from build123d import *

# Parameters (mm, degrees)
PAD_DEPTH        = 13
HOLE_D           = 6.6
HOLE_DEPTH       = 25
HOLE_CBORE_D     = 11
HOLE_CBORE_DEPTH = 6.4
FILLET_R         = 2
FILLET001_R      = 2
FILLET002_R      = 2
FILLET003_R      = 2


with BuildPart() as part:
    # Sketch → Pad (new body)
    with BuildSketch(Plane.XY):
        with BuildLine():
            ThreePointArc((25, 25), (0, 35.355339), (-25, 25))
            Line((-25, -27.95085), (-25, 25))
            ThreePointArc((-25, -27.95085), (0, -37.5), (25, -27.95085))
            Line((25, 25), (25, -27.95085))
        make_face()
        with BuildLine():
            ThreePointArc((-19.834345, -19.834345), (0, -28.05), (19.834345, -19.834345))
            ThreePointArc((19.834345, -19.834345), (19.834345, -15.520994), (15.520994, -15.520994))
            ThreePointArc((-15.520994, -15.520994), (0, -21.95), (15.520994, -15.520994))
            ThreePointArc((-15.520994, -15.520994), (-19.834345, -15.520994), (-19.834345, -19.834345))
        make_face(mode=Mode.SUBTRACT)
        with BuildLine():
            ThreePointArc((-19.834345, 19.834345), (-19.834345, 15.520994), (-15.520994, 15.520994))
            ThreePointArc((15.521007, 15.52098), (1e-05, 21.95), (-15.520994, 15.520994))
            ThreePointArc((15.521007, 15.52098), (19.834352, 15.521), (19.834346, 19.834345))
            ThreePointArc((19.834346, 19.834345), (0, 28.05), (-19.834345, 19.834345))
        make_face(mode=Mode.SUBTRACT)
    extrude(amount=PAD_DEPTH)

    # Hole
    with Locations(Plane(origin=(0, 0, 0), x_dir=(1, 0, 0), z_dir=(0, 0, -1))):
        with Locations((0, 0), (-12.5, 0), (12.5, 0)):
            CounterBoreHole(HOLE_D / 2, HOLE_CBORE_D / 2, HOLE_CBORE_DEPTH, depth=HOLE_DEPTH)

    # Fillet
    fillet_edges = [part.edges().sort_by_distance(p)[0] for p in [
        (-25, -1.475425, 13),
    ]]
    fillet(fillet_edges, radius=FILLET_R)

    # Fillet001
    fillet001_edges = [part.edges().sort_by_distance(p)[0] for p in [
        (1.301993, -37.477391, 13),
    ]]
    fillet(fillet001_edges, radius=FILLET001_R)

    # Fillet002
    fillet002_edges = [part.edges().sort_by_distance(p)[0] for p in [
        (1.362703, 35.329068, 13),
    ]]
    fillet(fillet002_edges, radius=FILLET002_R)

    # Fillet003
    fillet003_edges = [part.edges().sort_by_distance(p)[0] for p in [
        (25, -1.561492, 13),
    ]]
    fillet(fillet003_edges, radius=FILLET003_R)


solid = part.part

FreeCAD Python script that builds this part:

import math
import FreeCAD as App
import Part
import Sketcher

V = App.Vector
Q = App.Units.Quantity


def edges_at(feature, points):
    """Names of the edges that pass closest to the given points."""
    edges = feature.Shape.Edges
    near = lambda p: min(range(len(edges)), key=lambda i: edges[i].distToShape(Part.Vertex(*p))[0])
    return sorted({f"Edge{near(p) + 1}" for p in points})

doc = App.newDocument("Part")
body = doc.addObject("PartDesign::Body", "Body")

# Sketch on XY plane
sketch1 = body.newObject("Sketcher::SketchObject", "Sketch")
sketch1.AttachmentSupport = (doc.getObject("XY_Plane"), [""])
sketch1.MapMode = "FlatFace"
sketch1.addGeometry([
    Part.ArcOfCircle(Part.Circle(V(0, 0, 0), V(0, 0, 1), 35.4), math.radians(45), math.radians(135)),  # 0
    Part.LineSegment(V(-25, 25, 0), V(-25, -28, 0)),  # 1
    Part.ArcOfCircle(Part.Circle(V(0, 0, 0), V(0, 0, 1), 37.5), math.radians(-132), math.radians(-48)),  # 2
    Part.LineSegment(V(25, -28, 0), V(25, 25, 0)),  # 3
    Part.ArcOfCircle(Part.Circle(V(0, 0, 0), V(0, 0, 1), 28), math.radians(-135), math.radians(-45)),  # 4
    Part.ArcOfCircle(Part.Circle(V(-17.7, -17.7, 0), V(0, 0, 1), 3), math.radians(45), math.radians(225)),  # 5
    Part.ArcOfCircle(Part.Circle(V(0, 0, 0), V(0, 0, 1), 22), math.radians(-135), math.radians(-45)),  # 6
    Part.ArcOfCircle(Part.Circle(V(17.7, -17.7, 0), V(0, 0, 1), 3), math.radians(-45), math.radians(135)),  # 7
    Part.ArcOfCircle(Part.Circle(V(-17.7, 17.7, 0), V(0, 0, 1), 3), math.radians(135), math.radians(315)),  # 8
    Part.ArcOfCircle(Part.Circle(V(0, 0, 0), V(0, 0, 1), 28.1), math.radians(45), math.radians(135)),  # 9
    Part.ArcOfCircle(Part.Circle(V(17.7, 17.7, 0), V(0, 0, 1), 3.1), math.radians(-135), math.radians(45)),  # 10
    Part.ArcOfCircle(Part.Circle(V(0, 0, 0), V(0, 0, 1), 21.9), math.radians(45), math.radians(135)),  # 11
], False)
sketch1.addConstraint([
    Sketcher.Constraint("Coincident", 0, 2, 1, 1),
    Sketcher.Constraint("Coincident", 1, 2, 2, 1),
    Sketcher.Constraint("Coincident", 2, 2, 3, 1),
    Sketcher.Constraint("Coincident", 3, 2, 0, 1),
    Sketcher.Constraint("Tangent", 4, 1, 5, 2),
    Sketcher.Constraint("Tangent", 5, 1, 6, 1),
    Sketcher.Constraint("Tangent", 6, 2, 7, 2),
    Sketcher.Constraint("Tangent", 7, 1, 4, 2),
    Sketcher.Constraint("Tangent", 8, 1, 9, 2),
    Sketcher.Constraint("Tangent", 9, 1, 10, 2),
    Sketcher.Constraint("Coincident", 10, 1, 11, 1),
    Sketcher.Constraint("Tangent", 11, 2, 8, 2),
    Sketcher.Constraint("Vertical", 1),
    Sketcher.Constraint("Vertical", 3),
    Sketcher.Constraint("Coincident", 0, 3, -1, 1),
    Sketcher.Constraint("Coincident", 2, 3, -1, 1),
    Sketcher.Constraint("Coincident", 4, 3, -1, 1),
    Sketcher.Constraint("Coincident", 6, 3, -1, 1),
    Sketcher.Constraint("Coincident", 9, 3, -1, 1),
    Sketcher.Constraint("Coincident", 11, 3, -1, 1),
    Sketcher.Constraint("Equal", 7, 8),
    Sketcher.Constraint("Equal", 4, 9),
    Sketcher.Constraint("Horizontal", 5, 3, 7, 3),
    Sketcher.Constraint("Horizontal", 8, 3, 10, 3),
    Sketcher.Constraint("Horizontal", 1, 2, 2, 2),
    Sketcher.Constraint("Vertical", 5, 3, 8, 3),
    Sketcher.Constraint("Radius", 2, Q("37.500001 mm")),
    Sketcher.Constraint("Radius", 4, Q("28.049999 mm")),
    Sketcher.Constraint("Radius", 5, Q("3.05 mm")),
    Sketcher.Constraint("DistanceX", 0, 2, -1, 1, Q("25 mm")),
    Sketcher.Constraint("DistanceY", -1, 1, 0, 2, Q("25 mm")),
    Sketcher.Constraint("DistanceX", 5, 3, -1, 1, Q("17.67767 mm")),
    Sketcher.Constraint("DistanceY", -1, 1, 10, 1, Q("15.52098 mm")),
])
pad1 = body.newObject("PartDesign::Pad", "Pad")
pad1.Profile = sketch1
pad1.Length = 13

# Sketch on XY plane
sketch2 = body.newObject("Sketcher::SketchObject", "Sketch001")
sketch2.AttachmentSupport = (doc.getObject("XY_Plane"), [""])
sketch2.MapMode = "FlatFace"
sketch2.addGeometry([
    Part.Circle(V(0, 0, 0), V(0, 0, 1), 3.3),
    Part.Circle(V(-12.5, 0, 0), V(0, 0, 1), 3.3),
    Part.Circle(V(12.5, 0, 0), V(0, 0, 1), 3.3),
], False)
sketch2.addConstraint([
    Sketcher.Constraint("Coincident", 0, 3, -1, 1),
    Sketcher.Constraint("Equal", 0, 1),
    Sketcher.Constraint("Equal", 1, 2),
    Sketcher.Constraint("Symmetric", 1, 3, 2, 3, -1, 1),
    Sketcher.Constraint("PointOnObject", 1, 3, -1),
    Sketcher.Constraint("Diameter", 0, Q("6.6 mm")),
    Sketcher.Constraint("DistanceX", 1, 3, 2, 3, Q("25 mm")),
])
doc.recompute()
hole = body.newObject("PartDesign::Hole", "Hole")
hole.Profile = sketch2
hole.ThreadType = "None"
hole.Diameter = 6.6
hole.DepthType = "Dimension"
hole.Depth = 25
hole.DrillPoint = "Flat"
hole.HoleCutType = "Counterbore"
hole.HoleCutDiameter = 11
hole.HoleCutDepth = 6.4
hole.Reversed = True
doc.recompute()

fillet = body.newObject("PartDesign::Fillet", "Fillet")
fillet.Base = (hole, edges_at(hole, [(-25, -1.475, 13)]))
fillet.Radius = 2
doc.recompute()

fillet2 = body.newObject("PartDesign::Fillet", "Fillet001")
fillet2.Base = (fillet, edges_at(fillet, [(1.302, -37.477, 13)]))
fillet2.Radius = 2
doc.recompute()

fillet3 = body.newObject("PartDesign::Fillet", "Fillet002")
fillet3.Base = (fillet2, edges_at(fillet2, [(1.363, 35.329, 13)]))
fillet3.Radius = 2
doc.recompute()

fillet4 = body.newObject("PartDesign::Fillet", "Fillet003")
fillet4.Base = (fillet3, edges_at(fillet3, [(25, -1.561, 13)]))
fillet4.Radius = 2

doc.recompute()
